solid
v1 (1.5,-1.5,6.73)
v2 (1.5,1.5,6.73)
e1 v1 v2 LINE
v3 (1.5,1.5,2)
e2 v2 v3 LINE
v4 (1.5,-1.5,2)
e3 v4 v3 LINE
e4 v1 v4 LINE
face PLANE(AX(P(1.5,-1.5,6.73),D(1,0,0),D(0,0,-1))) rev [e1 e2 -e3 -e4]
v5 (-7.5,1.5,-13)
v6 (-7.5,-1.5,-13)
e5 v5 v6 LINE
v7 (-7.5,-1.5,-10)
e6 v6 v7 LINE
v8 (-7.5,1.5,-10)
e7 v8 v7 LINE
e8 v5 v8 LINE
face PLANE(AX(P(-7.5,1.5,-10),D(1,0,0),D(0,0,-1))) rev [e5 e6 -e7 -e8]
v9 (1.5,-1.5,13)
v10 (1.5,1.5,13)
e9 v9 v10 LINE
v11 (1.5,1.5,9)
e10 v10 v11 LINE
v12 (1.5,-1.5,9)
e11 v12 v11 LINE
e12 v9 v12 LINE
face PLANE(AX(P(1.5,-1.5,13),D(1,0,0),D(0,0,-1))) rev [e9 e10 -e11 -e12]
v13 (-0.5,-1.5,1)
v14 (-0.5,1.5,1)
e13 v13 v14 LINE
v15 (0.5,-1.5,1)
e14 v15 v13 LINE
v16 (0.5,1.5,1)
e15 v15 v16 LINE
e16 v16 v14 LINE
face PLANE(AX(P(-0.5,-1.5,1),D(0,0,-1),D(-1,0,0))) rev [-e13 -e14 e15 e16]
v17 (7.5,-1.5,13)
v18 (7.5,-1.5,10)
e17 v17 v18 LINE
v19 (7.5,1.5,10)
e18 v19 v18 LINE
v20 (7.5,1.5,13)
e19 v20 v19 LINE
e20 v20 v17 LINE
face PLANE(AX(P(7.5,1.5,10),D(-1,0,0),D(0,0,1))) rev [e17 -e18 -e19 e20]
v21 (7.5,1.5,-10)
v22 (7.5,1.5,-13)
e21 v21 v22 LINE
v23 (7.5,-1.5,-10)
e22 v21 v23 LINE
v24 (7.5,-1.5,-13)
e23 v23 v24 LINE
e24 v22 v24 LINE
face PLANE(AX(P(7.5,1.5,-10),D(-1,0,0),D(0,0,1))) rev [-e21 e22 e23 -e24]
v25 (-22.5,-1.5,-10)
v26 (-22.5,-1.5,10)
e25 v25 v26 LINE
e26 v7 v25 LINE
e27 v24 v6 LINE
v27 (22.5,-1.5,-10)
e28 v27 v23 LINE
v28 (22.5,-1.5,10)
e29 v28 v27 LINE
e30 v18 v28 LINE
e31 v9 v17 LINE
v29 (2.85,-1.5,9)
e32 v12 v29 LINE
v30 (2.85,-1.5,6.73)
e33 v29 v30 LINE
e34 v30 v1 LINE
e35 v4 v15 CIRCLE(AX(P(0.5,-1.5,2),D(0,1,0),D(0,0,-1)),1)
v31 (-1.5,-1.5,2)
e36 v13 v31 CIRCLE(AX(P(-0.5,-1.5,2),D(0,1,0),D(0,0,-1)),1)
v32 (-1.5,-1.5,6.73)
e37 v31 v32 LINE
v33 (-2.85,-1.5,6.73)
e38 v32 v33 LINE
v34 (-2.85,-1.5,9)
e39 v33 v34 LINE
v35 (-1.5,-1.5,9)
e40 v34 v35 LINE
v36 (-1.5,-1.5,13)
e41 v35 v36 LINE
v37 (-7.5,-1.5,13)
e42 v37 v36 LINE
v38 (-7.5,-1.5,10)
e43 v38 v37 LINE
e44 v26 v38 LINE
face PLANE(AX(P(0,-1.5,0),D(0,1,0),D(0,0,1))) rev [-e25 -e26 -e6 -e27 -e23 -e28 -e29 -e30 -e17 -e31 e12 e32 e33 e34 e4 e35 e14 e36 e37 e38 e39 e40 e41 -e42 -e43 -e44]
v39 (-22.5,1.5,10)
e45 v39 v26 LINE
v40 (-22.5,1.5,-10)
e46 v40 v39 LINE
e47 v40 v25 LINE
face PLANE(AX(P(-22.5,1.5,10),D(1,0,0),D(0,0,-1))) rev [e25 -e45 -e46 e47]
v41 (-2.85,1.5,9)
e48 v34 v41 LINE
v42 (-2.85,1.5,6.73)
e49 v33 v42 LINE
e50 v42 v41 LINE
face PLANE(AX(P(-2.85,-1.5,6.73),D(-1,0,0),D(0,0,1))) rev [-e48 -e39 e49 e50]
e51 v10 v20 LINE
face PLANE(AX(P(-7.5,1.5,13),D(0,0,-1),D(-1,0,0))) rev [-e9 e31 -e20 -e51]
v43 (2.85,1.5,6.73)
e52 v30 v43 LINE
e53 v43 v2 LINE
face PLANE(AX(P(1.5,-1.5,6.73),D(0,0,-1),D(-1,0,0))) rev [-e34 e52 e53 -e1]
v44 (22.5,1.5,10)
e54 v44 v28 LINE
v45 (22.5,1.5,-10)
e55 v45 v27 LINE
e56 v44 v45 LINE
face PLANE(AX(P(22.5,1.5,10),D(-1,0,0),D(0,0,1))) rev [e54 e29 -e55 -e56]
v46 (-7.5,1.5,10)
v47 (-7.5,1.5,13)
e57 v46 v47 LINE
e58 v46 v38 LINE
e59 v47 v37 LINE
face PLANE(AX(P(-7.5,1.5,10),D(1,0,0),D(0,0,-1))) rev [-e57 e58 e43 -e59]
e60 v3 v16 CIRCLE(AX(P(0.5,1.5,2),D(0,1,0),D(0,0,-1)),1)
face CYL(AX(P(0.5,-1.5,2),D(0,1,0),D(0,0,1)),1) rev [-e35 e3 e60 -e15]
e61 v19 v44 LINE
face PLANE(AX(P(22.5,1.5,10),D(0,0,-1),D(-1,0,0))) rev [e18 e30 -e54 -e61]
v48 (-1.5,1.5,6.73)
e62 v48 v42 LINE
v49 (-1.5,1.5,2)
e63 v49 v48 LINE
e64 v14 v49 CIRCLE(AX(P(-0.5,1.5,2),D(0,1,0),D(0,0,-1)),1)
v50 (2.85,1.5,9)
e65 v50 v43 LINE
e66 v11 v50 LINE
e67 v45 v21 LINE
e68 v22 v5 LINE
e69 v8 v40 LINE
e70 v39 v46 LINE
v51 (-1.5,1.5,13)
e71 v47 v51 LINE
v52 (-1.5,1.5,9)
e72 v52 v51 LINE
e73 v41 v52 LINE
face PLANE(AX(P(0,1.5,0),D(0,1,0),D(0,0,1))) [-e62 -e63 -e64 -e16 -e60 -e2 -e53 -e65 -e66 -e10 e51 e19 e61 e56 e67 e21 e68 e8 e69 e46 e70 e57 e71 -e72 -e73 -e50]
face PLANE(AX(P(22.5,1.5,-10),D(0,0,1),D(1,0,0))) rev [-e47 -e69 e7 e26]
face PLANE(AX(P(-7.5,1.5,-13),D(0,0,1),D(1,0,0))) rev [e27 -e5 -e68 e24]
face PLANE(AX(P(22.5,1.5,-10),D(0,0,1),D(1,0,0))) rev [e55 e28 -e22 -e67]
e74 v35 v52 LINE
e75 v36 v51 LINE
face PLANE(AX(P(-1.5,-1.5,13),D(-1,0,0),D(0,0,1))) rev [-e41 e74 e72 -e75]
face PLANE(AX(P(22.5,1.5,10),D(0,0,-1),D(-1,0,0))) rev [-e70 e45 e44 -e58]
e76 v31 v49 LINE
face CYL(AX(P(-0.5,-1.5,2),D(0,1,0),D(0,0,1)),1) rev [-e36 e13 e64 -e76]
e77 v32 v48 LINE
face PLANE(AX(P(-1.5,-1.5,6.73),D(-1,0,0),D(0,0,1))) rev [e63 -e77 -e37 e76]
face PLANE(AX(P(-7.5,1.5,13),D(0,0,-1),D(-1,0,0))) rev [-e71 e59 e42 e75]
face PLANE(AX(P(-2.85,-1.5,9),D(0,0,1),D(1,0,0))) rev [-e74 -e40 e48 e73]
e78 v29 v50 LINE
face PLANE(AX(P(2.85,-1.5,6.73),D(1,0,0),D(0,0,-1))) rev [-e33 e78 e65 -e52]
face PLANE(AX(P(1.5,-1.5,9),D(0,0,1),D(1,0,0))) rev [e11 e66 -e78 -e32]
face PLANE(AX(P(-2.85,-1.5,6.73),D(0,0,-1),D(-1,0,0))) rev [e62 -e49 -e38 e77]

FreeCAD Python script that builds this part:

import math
import FreeCAD as App
import Part
import Sketcher
from FreeCAD import Vector

doc = App.newDocument("Part")
body = doc.addObject("PartDesign::Body", "Body")

sketch1 = doc.addObject("Sketcher::SketchObject", "Sketch")
body.addObject(sketch1)
sketch1.AttachmentSupport = (doc.XZ_Plane, [""])
sketch1.MapMode = "FlatFace"
sketch1.addGeometry([
    Part.LineSegment(Vector(-22, -10, 0), Vector(-22, 10, 0)),
    Part.LineSegment(Vector(-22, 10, 0), Vector(22, 10, 0)),
    Part.LineSegment(Vector(22, 10, 0), Vector(22, -10, 0)),
    Part.LineSegment(Vector(22, -10, 0), Vector(-22, -10, 0)),
], False)
sketch1.addConstraint([
    Sketcher.Constraint("Coincident", 0, 2, 1, 1),
    Sketcher.Constraint("Coincident", 1, 2, 2, 1),
    Sketcher.Constraint("Coincident", 2, 2, 3, 1),
    Sketcher.Constraint("Coincident", 3, 2, 0, 1),
    Sketcher.Constraint("Vertical", 0),
    Sketcher.Constraint("Horizontal", 1),
    Sketcher.Constraint("Vertical", 2),
    Sketcher.Constraint("Horizontal", 3),
    Sketcher.Constraint("Symmetric", 0, 2, 2, 2, -1, 1),
    Sketcher.Constraint("DistanceX", 1, 1, 1, 2, 45.0),
    Sketcher.Constraint("DistanceY", 0, 1, 0, 2, 20.0),
])
pad1 = doc.addObject("PartDesign::Pad", "Pad")
body.addObject(pad1)
pad1.Profile = sketch1
pad1.Length = 3
pad1.Midplane = True

sketch2 = doc.addObject("Sketcher::SketchObject", "Sketch001")
body.addObject(sketch2)
sketch2.AttachmentSupport = (doc.XZ_Plane, [""])
sketch2.MapMode = "FlatFace"
sketch2.addGeometry([
    Part.LineSegment(Vector(-7.5, 10, 0), Vector(-7.5, 13, 0)),
    Part.LineSegment(Vector(-7.5, 13, 0), Vector(7.5, 13, 0)),
    Part.LineSegment(Vector(7.5, 13, 0), Vector(7.5, 10, 0)),
    Part.LineSegment(Vector(7.5, 10, 0), Vector(-7.5, 10, 0)),
    Part.LineSegment(Vector(-7.5, -13, 0), Vector(-7.5, -10, 0)),
    Part.LineSegment(Vector(-7.5, -10, 0), Vector(7.5, -10, 0)),
    Part.LineSegment(Vector(7.5, -10, 0), Vector(7.5, -13, 0)),
    Part.LineSegment(Vector(7.5, -13, 0), Vector(-7.5, -13, 0)),
], False)
sketch2.addConstraint([
    Sketcher.Constraint("Coincident", 0, 2, 1, 1),
    Sketcher.Constraint("Coincident", 1, 2, 2, 1),
    Sketcher.Constraint("Coincident", 2, 2, 3, 1),
    Sketcher.Constraint("Coincident", 3, 2, 0, 1),
    Sketcher.Constraint("Coincident", 4, 2, 5, 1),
    Sketcher.Constraint("Coincident", 5, 2, 6, 1),
    Sketcher.Constraint("Coincident", 6, 2, 7, 1),
    Sketcher.Constraint("Coincident", 7, 2, 4, 1),
    Sketcher.Constraint("Vertical", 0),
    Sketcher.Constraint("Horizontal", 1),
    Sketcher.Constraint("Vertical", 2),
    Sketcher.Constraint("Horizontal", 3),
    Sketcher.Constraint("Vertical", 4),
    Sketcher.Constraint("Horizontal", 5),
    Sketcher.Constraint("Vertical", 6),
    Sketcher.Constraint("Horizontal", 7),
    Sketcher.Constraint("Symmetric", 2, 2, 4, 2, -1, 1),
    Sketcher.Constraint("Symmetric", 0, 2, 6, 2, -1, 1),
    Sketcher.Constraint("Vertical", 3, 2, 4, 2),
    Sketcher.Constraint("DistanceX", 1, 1, 1, 2, 15.0),
    Sketcher.Constraint("DistanceY", 0, 1, 0, 2, 3.0),
    Sketcher.Constraint("DistanceY", -1, 1, 0, 2, 13.0),
])
pad2 = doc.addObject("PartDesign::Pad", "Pad001")
body.addObject(pad2)
pad2.Profile = sketch2
pad2.Length = 3
pad2.Midplane = True

sketch3 = doc.addObject("Sketcher::SketchObject", "Sketch002")
body.addObject(sketch3)
sketch3.AttachmentSupport = (doc.XZ_Plane, [""])
sketch3.MapMode = "FlatFace"
sketch3.addGeometry([
    Part.LineSegment(Vector(-1.5, 13, 0), Vector(1.5, 13, 0)),
    Part.LineSegment(Vector(1.5, 13, 0), Vector(1.5, 9, 0)),
    Part.LineSegment(Vector(1.5, 9, 0), Vector(2.9, 9, 0)),
    Part.LineSegment(Vector(2.9, 9, 0), Vector(2.9, 6.7, 0)),
    Part.LineSegment(Vector(2.9, 6.7, 0), Vector(1.5, 6.7, 0)),
    Part.LineSegment(Vector(1.5, 6.7, 0), Vector(1.5, 2, 0)),
    Part.ArcOfCircle(Part.Circle(Vector(0.5, 2, 0), Vector(0, 0, 1), 1), math.radians(-90), math.radians(0)),
    Part.LineSegment(Vector(0.5, 1, 0), Vector(-0.5, 1, 0)),
    Part.ArcOfCircle(Part.Circle(Vector(-0.5, 2, 0), Vector(0, 0, 1), 1), math.radians(-180), math.radians(-90)),
    Part.LineSegment(Vector(-1.5, 2, 0), Vector(-1.5, 6.7, 0)),
    Part.LineSegment(Vector(-1.5, 6.7, 0), Vector(-2.9, 6.7, 0)),
    Part.LineSegment(Vector(-2.9, 6.7, 0), Vector(-2.9, 9, 0)),
    Part.LineSegment(Vector(-2.9, 9, 0), Vector(-1.5, 9, 0)),
    Part.LineSegment(Vector(-1.5, 9, 0), Vector(-1.5, 13, 0)),
], False)
sketch3.addConstraint([
    Sketcher.Constraint("Coincident", 0, 2, 1, 1),
    Sketcher.Constraint("Coincident", 1, 2, 2, 1),
    Sketcher.Constraint("Coincident", 2, 2, 3, 1),
    Sketcher.Constraint("Coincident", 3, 2, 4, 1),
    Sketcher.Constraint("Coincident", 4, 2, 5, 1),
    Sketcher.Constraint("Tangent", 5, 2, 6, 2),
    Sketcher.Constraint("Tangent", 6, 1, 7, 1),
    Sketcher.Constraint("Tangent", 7, 2, 8, 2),
    Sketcher.Constraint("Tangent", 8, 1, 9, 1),
    Sketcher.Constraint("Coincident", 9, 2, 10, 1),
    Sketcher.Constraint("Coincident", 10, 2, 11, 1),
    Sketcher.Constraint("Coincident", 11, 2, 12, 1),
    Sketcher.Constraint("Coincident", 12, 2, 13, 1),
    Sketcher.Constraint("Coincident", 13, 2, 0, 1),
    Sketcher.Constraint("Horizontal", 0),
    Sketcher.Constraint("Vertical", 1),
    Sketcher.Constraint("Horizontal", 2),
    Sketcher.Constraint("Vertical", 3),
    Sketcher.Constraint("Horizontal", 4),
    Sketcher.Constraint("Vertical", 5),
    Sketcher.Constraint("Horizontal", 7),
    Sketcher.Constraint("Vertical", 9),
    Sketcher.Constraint("Horizontal", 10),
    Sketcher.Constraint("Vertical", 11),
    Sketcher.Constraint("Horizontal", 12),
    Sketcher.Constraint("Vertical", 13),
    Sketcher.Constraint("Equal", 6, 8),
    Sketcher.Constraint("Symmetric", 4, 2, 9, 2, -2),
    Sketcher.Constraint("Symmetric", 2, 2, 11, 2, -2),
    Sketcher.Constraint("Vertical", 1, 2, 4, 2),
    Sketcher.Constraint("Vertical", 9, 2, 12, 2),
    Sketcher.Constraint("Radius", 6, 1.0),
    Sketcher.Constraint("DistanceX", 0, 1, 0, 2, 3.0),
    Sketcher.Constraint("DistanceY", 1, 2, 1, 1, 4.0),
    Sketcher.Constraint("DistanceY", -1, 1, 6, 3, 2.0),
    Sketcher.Constraint("DistanceY", -1, 1, 0, 2, 13.0),
    Sketcher.Constraint("DistanceX", 2, 1, 2, 2, 1.35),
    Sketcher.Constraint("DistanceY", 3, 2, 3, 1, 2.27),
])
pocket1 = doc.addObject("PartDesign::Pocket", "Pocket")
body.addObject(pocket1)
pocket1.Profile = sketch3
pocket1.Type = "ThroughAll"
pocket1.Midplane = True

doc.recompute()
